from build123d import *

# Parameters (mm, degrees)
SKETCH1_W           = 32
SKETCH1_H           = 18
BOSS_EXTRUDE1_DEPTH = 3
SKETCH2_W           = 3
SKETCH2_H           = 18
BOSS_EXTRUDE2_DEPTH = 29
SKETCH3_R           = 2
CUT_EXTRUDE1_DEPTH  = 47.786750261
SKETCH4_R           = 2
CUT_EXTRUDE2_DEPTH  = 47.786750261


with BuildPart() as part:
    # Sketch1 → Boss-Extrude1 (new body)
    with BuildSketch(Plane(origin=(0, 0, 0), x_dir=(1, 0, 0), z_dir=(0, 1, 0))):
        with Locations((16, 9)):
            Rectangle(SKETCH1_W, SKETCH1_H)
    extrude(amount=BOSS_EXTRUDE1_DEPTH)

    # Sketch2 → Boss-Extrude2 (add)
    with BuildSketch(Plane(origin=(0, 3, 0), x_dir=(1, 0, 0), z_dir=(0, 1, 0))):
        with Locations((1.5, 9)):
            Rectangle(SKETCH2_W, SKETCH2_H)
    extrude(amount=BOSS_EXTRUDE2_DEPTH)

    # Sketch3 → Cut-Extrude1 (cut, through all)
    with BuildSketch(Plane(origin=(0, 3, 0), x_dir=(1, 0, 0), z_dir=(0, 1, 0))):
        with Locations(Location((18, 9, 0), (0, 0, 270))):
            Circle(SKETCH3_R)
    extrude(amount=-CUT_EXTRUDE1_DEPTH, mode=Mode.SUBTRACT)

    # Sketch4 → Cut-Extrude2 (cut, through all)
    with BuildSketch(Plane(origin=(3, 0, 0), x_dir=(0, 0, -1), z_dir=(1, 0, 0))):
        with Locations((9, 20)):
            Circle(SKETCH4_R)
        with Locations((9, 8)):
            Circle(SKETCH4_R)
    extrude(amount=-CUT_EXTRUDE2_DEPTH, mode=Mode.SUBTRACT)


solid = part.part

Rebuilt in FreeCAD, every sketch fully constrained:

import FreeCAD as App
import Part
import Sketcher


def add_polygon(sketch, points):
    """Adds a closed chain of lines whose ends are joined by coincident constraints."""
    first, n = sketch.GeometryCount, len(points)
    for a, b in zip(points, points[1:] + points[:1]):
        sketch.addGeometry(Part.LineSegment(App.Vector(*a, 0), App.Vector(*b, 0)), False)
    for i in range(n):
        sketch.addConstraint(Sketcher.Constraint("Coincident", first + i, 2, first + (i + 1) % n, 1))

doc = App.newDocument("Part")
body = doc.addObject("PartDesign::Body", "Body")

# Sketch on XZ plane
sketch1 = body.newObject("Sketcher::SketchObject", "Sketch")
sketch1.AttachmentSupport = (doc.getObject("XZ_Plane"), [""])
sketch1.MapMode = "FlatFace"
add_polygon(sketch1, [(0, -18), (0, 0), (32, 0), (32, -18)])  # lines 0-3
sketch1.addConstraint(Sketcher.Constraint("Vertical", 0))
sketch1.addConstraint(Sketcher.Constraint("Horizontal", 1))
sketch1.addConstraint(Sketcher.Constraint("Vertical", 2))
sketch1.addConstraint(Sketcher.Constraint("Horizontal", 3))
sketch1.addConstraint(Sketcher.Constraint("Coincident", 0, 2, -1, 1))
sketch1.addConstraint(Sketcher.Constraint("DistanceX", 1, 1, 1, 2, 32.0))
sketch1.addConstraint(Sketcher.Constraint("DistanceY", 0, 1, 0, 2, 18.0))
pad1 = body.newObject("PartDesign::Pad", "Pad")
pad1.Profile = sketch1
pad1.Length = 3
pad1.Reversed = True

# Sketch on XZ plane
sketch2 = body.newObject("Sketcher::SketchObject", "Sketch001")
sketch2.AttachmentSupport = (doc.getObject("XZ_Plane"), [""])
sketch2.MapMode = "FlatFace"
sketch2.AttachmentOffset = App.Placement(App.Vector(0, 0, -3), App.Rotation())
add_polygon(sketch2, [(0, -18), (0, 0), (3, 0), (3, -18)])  # lines 0-3
sketch2.addConstraint(Sketcher.Constraint("Vertical", 0))
sketch2.addConstraint(Sketcher.Constraint("Horizontal", 1))
sketch2.addConstraint(Sketcher.Constraint("Vertical", 2))
sketch2.addConstraint(Sketcher.Constraint("Horizontal", 3))
sketch2.addConstraint(Sketcher.Constraint("Coincident", 0, 2, -1, 1))
sketch2.addConstraint(Sketcher.Constraint("DistanceX", 1, 1, 1, 2, 3.0))
sketch2.addConstraint(Sketcher.Constraint("DistanceY", 0, 1, 0, 2, 18.0))
pad2 = body.newObject("PartDesign::Pad", "Pad001")
pad2.Profile = sketch2
pad2.Length = 29
pad2.Reversed = True

# Sketch on XZ plane
sketch3 = body.newObject("Sketcher::SketchObject", "Sketch002")
sketch3.AttachmentSupport = (doc.getObject("XZ_Plane"), [""])
sketch3.MapMode = "FlatFace"
sketch3.AttachmentOffset = App.Placement(App.Vector(0, 0, -3), App.Rotation())
sketch3.addGeometry(Part.Circle(App.Vector(18, -9, 0), App.Vector(0, 0, 1), 2), False)
sketch3.addConstraint(Sketcher.Constraint("Diameter", 0, 4.0))
sketch3.addConstraint(Sketcher.Constraint("DistanceX", -1, 1, 0, 3, 18.0))
sketch3.addConstraint(Sketcher.Constraint("DistanceY", 0, 3, -1, 1, 9.0))
pocket1 = body.newObject("PartDesign::Pocket", "Pocket")
pocket1.Profile = sketch3
pocket1.Type = "ThroughAll"
pocket1.Reversed = True

# Sketch on YZ plane
sketch4 = body.newObject("Sketcher::SketchObject", "Sketch003")
sketch4.AttachmentSupport = (doc.getObject("YZ_Plane"), [""])
sketch4.MapMode = "FlatFace"
sketch4.AttachmentOffset = App.Placement(App.Vector(0, 0, 3), App.Rotation())
sketch4.addGeometry(Part.Circle(App.Vector(20, -9, 0), App.Vector(0, 0, 1), 2), False)
sketch4.addGeometry(Part.Circle(App.Vector(8, -9, 0), App.Vector(0, 0, 1), 2), False)
sketch4.addConstraint(Sketcher.Constraint("Equal", 0, 1))
sketch4.addConstraint(Sketcher.Constraint("Horizontal", 0, 3, 1, 3))
sketch4.addConstraint(Sketcher.Constraint("Diameter", 0, 4.0))
sketch4.addConstraint(Sketcher.Constraint("DistanceX", -1, 1, 0, 3, 20.0))
sketch4.addConstraint(Sketcher.Constraint("DistanceY", 0, 3, -1, 1, 9.0))
sketch4.addConstraint(Sketcher.Constraint("DistanceX", -1, 1, 1, 3, 8.0))
pocket2 = body.newObject("PartDesign::Pocket", "Pocket001")
pocket2.Profile = sketch4
pocket2.Type = "ThroughAll"

doc.recompute()
